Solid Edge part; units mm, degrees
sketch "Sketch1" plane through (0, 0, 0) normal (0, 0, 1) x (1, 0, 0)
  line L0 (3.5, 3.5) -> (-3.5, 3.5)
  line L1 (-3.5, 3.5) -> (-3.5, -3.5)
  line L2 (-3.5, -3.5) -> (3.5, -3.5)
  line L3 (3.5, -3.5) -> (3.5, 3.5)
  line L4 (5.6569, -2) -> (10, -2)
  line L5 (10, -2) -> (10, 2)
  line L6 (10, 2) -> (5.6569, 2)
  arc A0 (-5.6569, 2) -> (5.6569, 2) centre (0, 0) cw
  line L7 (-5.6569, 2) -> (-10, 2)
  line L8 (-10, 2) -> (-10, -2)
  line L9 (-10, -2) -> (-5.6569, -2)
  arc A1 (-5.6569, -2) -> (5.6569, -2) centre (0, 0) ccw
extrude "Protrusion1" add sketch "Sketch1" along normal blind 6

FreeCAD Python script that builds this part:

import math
import FreeCAD as App
import Part
import Sketcher
Q = App.Units.Quantity


def add_polygon(sketch, points):
    """Adds a closed chain of lines whose ends are joined by coincident constraints."""
    first, n = sketch.GeometryCount, len(points)
    for a, b in zip(points, points[1:] + points[:1]):
        sketch.addGeometry(Part.LineSegment(App.Vector(*a, 0), App.Vector(*b, 0)), False)
    for i in range(n):
        sketch.addConstraint(Sketcher.Constraint("Coincident", first + i, 2, first + (i + 1) % n, 1))

doc = App.newDocument("Part")
params = doc.addObject("Spreadsheet::Sheet", "Params")
for row, (alias, value) in enumerate([
    ("sketch1_radius", "6 mm"),
    ("sketch1_width", "7 mm"),
    ("sketch1_height", "4 mm"),
    ("pad1_length", "6 mm"),
], start=1):
    params.set(f"A{row}", alias)
    params.set(f"B{row}", "=" + value)
    params.setAlias(f"B{row}", alias)

body = doc.addObject("PartDesign::Body", "Body")

# Sketch on XY plane
sketch1 = doc.addObject("Sketcher::SketchObject", "Sketch")
body.addObject(sketch1)
sketch1.AttachmentSupport = (doc.XY_Plane, [""])
sketch1.MapMode = "FlatFace"
sketch1.addGeometry(Part.ArcOfCircle(Part.Circle(App.Vector(0, 0, 0), App.Vector(0, 0, 1), 6), math.radians(-161), math.radians(-19)), False)  # 0
sketch1.addGeometry(Part.LineSegment(App.Vector(5.7, -2, 0), App.Vector(10, -2, 0)), False)  # 1
sketch1.addGeometry(Part.LineSegment(App.Vector(10, -2, 0), App.Vector(10, 2, 0)), False)  # 2
sketch1.addGeometry(Part.LineSegment(App.Vector(10, 2, 0), App.Vector(5.7, 2, 0)), False)  # 3
sketch1.addGeometry(Part.ArcOfCircle(Part.Circle(App.Vector(0, 0, 0), App.Vector(0, 0, 1), 6), math.radians(19), math.radians(161)), False)  # 4
sketch1.addGeometry(Part.LineSegment(App.Vector(-5.7, 2, 0), App.Vector(-10, 2, 0)), False)  # 5
sketch1.addGeometry(Part.LineSegment(App.Vector(-10, 2, 0), App.Vector(-10, -2, 0)), False)  # 6
sketch1.addGeometry(Part.LineSegment(App.Vector(-10, -2, 0), App.Vector(-5.7, -2, 0)), False)  # 7
add_polygon(sketch1, [(-3.5, 3.5), (3.5, 3.5), (3.5, -3.5), (-3.5, -3.5)])  # lines 8-11
sketch1.addConstraint([
    Sketcher.Constraint("Coincident", 0, 2, 1, 1),
    Sketcher.Constraint("Coincident", 1, 2, 2, 1),
    Sketcher.Constraint("Coincident", 2, 2, 3, 1),
    Sketcher.Constraint("Coincident", 3, 2, 4, 1),
    Sketcher.Constraint("Coincident", 4, 2, 5, 1),
    Sketcher.Constraint("Coincident", 5, 2, 6, 1),
    Sketcher.Constraint("Coincident", 6, 2, 7, 1),
    Sketcher.Constraint("Coincident", 7, 2, 0, 1),
    Sketcher.Constraint("Horizontal", 1),
    Sketcher.Constraint("Vertical", 2),
    Sketcher.Constraint("Horizontal", 3),
    Sketcher.Constraint("Horizontal", 5),
    Sketcher.Constraint("Vertical", 6),
    Sketcher.Constraint("Horizontal", 7),
    Sketcher.Constraint("Horizontal", 8),
    Sketcher.Constraint("Vertical", 9),
    Sketcher.Constraint("Horizontal", 10),
    Sketcher.Constraint("Vertical", 11),
    Sketcher.Constraint("Coincident", 0, 3, -1, 1),
    Sketcher.Constraint("Coincident", 4, 3, -1, 1),
    Sketcher.Constraint("Equal", 0, 4),
    Sketcher.Constraint("Symmetric", 1, 2, 5, 2, -1, 1),
    Sketcher.Constraint("Symmetric", 8, 2, 10, 2, -1, 1),
    Sketcher.Constraint("Horizontal", 3, 2, 4, 2),
    Sketcher.Constraint("Horizontal", 1, 2, 6, 2),
    Sketcher.Constraint("Equal", 10, 9),
    Sketcher.Constraint("Radius", 0, Q("6 mm")),
    Sketcher.Constraint("DistanceX", 8, 1, 8, 2, Q("7 mm")),
    Sketcher.Constraint("DistanceY", 2, 1, 2, 2, Q("4 mm")),
    Sketcher.Constraint("DistanceX", -1, 1, 1, 2, Q("10 mm")),
])
sketch1.setExpression("Constraints[30]", "Params.sketch1_radius")
sketch1.setExpression("Constraints[31]", "Params.sketch1_width")
sketch1.setExpression("Constraints[32]", "Params.sketch1_height")
pad1 = doc.addObject("PartDesign::Pad", "Pad")
body.addObject(pad1)
pad1.Profile = sketch1
pad1.setExpression("Length", "Params.pad1_length")

doc.recompute()
